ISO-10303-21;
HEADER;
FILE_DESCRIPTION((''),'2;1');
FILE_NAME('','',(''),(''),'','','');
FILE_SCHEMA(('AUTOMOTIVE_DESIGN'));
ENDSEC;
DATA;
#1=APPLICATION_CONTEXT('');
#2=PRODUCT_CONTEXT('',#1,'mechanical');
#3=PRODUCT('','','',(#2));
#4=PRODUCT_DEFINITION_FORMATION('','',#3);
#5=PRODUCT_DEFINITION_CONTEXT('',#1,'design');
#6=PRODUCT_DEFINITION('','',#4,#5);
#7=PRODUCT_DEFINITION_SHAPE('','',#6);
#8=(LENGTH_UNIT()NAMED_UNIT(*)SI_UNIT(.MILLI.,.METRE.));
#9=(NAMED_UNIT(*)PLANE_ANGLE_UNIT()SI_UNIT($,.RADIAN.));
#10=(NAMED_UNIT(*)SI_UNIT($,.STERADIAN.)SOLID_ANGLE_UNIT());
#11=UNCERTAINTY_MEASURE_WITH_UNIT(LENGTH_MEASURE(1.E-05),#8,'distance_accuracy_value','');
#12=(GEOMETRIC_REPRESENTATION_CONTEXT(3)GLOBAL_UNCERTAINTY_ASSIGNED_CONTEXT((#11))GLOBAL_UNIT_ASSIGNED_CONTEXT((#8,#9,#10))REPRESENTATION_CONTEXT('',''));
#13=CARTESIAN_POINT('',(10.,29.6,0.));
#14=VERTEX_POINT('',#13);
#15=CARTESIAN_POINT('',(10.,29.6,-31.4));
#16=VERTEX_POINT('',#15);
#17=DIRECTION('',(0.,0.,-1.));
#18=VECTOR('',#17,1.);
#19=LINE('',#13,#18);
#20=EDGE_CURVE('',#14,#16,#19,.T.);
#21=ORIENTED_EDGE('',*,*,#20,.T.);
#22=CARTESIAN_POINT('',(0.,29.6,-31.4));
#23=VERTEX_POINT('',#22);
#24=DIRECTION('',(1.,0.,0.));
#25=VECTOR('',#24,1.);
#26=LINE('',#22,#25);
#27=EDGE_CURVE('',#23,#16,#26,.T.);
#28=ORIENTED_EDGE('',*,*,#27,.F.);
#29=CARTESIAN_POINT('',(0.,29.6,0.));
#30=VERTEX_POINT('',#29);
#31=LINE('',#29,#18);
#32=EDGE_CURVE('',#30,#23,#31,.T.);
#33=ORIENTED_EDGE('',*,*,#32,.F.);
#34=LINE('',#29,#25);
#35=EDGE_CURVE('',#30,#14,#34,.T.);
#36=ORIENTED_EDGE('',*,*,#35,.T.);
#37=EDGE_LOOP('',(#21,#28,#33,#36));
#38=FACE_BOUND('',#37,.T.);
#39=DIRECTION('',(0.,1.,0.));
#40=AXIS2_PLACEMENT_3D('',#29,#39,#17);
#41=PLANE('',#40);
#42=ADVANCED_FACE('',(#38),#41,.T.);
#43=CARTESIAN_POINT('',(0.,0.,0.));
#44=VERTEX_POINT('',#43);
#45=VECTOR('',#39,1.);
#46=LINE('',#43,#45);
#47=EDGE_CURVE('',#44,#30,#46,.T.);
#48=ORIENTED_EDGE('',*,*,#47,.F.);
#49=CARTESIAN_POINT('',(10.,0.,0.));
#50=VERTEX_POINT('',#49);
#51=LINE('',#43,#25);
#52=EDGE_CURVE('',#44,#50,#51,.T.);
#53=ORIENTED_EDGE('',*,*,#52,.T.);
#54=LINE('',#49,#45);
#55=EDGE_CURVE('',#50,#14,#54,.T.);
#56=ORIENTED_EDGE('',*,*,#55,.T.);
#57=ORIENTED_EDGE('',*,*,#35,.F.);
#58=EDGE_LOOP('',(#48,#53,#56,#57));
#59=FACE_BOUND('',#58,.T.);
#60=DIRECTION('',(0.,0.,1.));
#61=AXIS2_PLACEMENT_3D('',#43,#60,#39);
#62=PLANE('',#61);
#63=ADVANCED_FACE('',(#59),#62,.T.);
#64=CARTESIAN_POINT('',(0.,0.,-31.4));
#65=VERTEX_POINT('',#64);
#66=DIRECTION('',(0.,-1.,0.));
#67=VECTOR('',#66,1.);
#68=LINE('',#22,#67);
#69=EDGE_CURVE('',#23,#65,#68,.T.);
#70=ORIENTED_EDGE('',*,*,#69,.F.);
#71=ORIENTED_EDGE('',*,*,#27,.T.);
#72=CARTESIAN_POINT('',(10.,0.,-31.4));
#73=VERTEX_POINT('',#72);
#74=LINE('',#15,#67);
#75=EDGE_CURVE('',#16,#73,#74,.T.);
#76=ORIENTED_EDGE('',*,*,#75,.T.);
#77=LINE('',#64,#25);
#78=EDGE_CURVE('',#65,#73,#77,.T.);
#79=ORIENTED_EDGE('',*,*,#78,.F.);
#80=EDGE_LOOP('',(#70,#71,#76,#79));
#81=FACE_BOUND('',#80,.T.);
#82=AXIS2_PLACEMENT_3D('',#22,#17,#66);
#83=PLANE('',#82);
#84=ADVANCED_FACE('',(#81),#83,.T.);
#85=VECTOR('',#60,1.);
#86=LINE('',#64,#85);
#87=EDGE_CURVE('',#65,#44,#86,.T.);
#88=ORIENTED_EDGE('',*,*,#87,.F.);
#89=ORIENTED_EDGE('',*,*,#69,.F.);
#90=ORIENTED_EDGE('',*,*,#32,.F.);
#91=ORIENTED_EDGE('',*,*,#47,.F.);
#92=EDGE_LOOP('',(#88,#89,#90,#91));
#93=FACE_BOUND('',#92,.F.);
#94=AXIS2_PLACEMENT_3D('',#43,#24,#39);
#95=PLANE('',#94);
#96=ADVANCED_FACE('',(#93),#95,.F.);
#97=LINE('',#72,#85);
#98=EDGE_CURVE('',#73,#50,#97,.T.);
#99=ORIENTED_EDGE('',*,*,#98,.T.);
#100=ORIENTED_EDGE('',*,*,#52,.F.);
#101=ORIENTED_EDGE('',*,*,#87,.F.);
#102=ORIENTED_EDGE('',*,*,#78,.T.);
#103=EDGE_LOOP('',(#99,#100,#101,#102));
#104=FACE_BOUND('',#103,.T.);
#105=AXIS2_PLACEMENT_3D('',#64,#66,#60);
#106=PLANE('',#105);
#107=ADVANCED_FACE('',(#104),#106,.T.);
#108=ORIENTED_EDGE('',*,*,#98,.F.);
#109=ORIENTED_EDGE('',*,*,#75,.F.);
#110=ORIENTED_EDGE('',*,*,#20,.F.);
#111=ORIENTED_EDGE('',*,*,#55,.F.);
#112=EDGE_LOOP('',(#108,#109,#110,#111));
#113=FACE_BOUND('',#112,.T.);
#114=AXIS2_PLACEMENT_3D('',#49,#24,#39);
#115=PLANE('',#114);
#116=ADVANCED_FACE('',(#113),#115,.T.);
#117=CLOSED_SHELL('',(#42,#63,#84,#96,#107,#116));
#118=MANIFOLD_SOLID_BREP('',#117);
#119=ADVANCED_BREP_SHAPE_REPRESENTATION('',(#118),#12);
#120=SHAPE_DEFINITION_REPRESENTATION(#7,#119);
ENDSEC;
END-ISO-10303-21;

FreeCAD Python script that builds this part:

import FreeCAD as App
import Part
import Sketcher

doc = App.newDocument("Part")
body = doc.addObject("PartDesign::Body", "Body")

# Sketch on YZ plane
sketch1 = doc.addObject("Sketcher::SketchObject", "Sketch")
body.addObject(sketch1)
sketch1.AttachmentSupport = (doc.YZ_Plane, [""])
sketch1.MapMode = "FlatFace"
sketch1.addGeometry([
    Part.LineSegment(App.Vector(30, 0, 0), App.Vector(0, 0, 0)),
    Part.LineSegment(App.Vector(0, 0, 0), App.Vector(0, -31, 0)),
    Part.LineSegment(App.Vector(0, -31, 0), App.Vector(30, -31, 0)),
    Part.LineSegment(App.Vector(30, -31, 0), App.Vector(30, 0, 0)),
], False)
sketch1.addConstraint([
    Sketcher.Constraint("Coincident", 0, 2, 1, 1),
    Sketcher.Constraint("Coincident", 1, 2, 2, 1),
    Sketcher.Constraint("Coincident", 2, 2, 3, 1),
    Sketcher.Constraint("Coincident", 3, 2, 0, 1),
    Sketcher.Constraint("Horizontal", 0),
    Sketcher.Constraint("Vertical", 1),
    Sketcher.Constraint("Horizontal", 2),
    Sketcher.Constraint("Vertical", 3),
    Sketcher.Constraint("Coincident", 0, 2, -1, 1),
    Sketcher.Constraint("DistanceX", 0, 2, 0, 1, 29.6),
    Sketcher.Constraint("DistanceY", 1, 2, 1, 1, 31.4),
])
pad1 = doc.addObject("PartDesign::Pad", "Pad")
body.addObject(pad1)
pad1.Profile = sketch1
pad1.Length = 10

doc.recompute()
